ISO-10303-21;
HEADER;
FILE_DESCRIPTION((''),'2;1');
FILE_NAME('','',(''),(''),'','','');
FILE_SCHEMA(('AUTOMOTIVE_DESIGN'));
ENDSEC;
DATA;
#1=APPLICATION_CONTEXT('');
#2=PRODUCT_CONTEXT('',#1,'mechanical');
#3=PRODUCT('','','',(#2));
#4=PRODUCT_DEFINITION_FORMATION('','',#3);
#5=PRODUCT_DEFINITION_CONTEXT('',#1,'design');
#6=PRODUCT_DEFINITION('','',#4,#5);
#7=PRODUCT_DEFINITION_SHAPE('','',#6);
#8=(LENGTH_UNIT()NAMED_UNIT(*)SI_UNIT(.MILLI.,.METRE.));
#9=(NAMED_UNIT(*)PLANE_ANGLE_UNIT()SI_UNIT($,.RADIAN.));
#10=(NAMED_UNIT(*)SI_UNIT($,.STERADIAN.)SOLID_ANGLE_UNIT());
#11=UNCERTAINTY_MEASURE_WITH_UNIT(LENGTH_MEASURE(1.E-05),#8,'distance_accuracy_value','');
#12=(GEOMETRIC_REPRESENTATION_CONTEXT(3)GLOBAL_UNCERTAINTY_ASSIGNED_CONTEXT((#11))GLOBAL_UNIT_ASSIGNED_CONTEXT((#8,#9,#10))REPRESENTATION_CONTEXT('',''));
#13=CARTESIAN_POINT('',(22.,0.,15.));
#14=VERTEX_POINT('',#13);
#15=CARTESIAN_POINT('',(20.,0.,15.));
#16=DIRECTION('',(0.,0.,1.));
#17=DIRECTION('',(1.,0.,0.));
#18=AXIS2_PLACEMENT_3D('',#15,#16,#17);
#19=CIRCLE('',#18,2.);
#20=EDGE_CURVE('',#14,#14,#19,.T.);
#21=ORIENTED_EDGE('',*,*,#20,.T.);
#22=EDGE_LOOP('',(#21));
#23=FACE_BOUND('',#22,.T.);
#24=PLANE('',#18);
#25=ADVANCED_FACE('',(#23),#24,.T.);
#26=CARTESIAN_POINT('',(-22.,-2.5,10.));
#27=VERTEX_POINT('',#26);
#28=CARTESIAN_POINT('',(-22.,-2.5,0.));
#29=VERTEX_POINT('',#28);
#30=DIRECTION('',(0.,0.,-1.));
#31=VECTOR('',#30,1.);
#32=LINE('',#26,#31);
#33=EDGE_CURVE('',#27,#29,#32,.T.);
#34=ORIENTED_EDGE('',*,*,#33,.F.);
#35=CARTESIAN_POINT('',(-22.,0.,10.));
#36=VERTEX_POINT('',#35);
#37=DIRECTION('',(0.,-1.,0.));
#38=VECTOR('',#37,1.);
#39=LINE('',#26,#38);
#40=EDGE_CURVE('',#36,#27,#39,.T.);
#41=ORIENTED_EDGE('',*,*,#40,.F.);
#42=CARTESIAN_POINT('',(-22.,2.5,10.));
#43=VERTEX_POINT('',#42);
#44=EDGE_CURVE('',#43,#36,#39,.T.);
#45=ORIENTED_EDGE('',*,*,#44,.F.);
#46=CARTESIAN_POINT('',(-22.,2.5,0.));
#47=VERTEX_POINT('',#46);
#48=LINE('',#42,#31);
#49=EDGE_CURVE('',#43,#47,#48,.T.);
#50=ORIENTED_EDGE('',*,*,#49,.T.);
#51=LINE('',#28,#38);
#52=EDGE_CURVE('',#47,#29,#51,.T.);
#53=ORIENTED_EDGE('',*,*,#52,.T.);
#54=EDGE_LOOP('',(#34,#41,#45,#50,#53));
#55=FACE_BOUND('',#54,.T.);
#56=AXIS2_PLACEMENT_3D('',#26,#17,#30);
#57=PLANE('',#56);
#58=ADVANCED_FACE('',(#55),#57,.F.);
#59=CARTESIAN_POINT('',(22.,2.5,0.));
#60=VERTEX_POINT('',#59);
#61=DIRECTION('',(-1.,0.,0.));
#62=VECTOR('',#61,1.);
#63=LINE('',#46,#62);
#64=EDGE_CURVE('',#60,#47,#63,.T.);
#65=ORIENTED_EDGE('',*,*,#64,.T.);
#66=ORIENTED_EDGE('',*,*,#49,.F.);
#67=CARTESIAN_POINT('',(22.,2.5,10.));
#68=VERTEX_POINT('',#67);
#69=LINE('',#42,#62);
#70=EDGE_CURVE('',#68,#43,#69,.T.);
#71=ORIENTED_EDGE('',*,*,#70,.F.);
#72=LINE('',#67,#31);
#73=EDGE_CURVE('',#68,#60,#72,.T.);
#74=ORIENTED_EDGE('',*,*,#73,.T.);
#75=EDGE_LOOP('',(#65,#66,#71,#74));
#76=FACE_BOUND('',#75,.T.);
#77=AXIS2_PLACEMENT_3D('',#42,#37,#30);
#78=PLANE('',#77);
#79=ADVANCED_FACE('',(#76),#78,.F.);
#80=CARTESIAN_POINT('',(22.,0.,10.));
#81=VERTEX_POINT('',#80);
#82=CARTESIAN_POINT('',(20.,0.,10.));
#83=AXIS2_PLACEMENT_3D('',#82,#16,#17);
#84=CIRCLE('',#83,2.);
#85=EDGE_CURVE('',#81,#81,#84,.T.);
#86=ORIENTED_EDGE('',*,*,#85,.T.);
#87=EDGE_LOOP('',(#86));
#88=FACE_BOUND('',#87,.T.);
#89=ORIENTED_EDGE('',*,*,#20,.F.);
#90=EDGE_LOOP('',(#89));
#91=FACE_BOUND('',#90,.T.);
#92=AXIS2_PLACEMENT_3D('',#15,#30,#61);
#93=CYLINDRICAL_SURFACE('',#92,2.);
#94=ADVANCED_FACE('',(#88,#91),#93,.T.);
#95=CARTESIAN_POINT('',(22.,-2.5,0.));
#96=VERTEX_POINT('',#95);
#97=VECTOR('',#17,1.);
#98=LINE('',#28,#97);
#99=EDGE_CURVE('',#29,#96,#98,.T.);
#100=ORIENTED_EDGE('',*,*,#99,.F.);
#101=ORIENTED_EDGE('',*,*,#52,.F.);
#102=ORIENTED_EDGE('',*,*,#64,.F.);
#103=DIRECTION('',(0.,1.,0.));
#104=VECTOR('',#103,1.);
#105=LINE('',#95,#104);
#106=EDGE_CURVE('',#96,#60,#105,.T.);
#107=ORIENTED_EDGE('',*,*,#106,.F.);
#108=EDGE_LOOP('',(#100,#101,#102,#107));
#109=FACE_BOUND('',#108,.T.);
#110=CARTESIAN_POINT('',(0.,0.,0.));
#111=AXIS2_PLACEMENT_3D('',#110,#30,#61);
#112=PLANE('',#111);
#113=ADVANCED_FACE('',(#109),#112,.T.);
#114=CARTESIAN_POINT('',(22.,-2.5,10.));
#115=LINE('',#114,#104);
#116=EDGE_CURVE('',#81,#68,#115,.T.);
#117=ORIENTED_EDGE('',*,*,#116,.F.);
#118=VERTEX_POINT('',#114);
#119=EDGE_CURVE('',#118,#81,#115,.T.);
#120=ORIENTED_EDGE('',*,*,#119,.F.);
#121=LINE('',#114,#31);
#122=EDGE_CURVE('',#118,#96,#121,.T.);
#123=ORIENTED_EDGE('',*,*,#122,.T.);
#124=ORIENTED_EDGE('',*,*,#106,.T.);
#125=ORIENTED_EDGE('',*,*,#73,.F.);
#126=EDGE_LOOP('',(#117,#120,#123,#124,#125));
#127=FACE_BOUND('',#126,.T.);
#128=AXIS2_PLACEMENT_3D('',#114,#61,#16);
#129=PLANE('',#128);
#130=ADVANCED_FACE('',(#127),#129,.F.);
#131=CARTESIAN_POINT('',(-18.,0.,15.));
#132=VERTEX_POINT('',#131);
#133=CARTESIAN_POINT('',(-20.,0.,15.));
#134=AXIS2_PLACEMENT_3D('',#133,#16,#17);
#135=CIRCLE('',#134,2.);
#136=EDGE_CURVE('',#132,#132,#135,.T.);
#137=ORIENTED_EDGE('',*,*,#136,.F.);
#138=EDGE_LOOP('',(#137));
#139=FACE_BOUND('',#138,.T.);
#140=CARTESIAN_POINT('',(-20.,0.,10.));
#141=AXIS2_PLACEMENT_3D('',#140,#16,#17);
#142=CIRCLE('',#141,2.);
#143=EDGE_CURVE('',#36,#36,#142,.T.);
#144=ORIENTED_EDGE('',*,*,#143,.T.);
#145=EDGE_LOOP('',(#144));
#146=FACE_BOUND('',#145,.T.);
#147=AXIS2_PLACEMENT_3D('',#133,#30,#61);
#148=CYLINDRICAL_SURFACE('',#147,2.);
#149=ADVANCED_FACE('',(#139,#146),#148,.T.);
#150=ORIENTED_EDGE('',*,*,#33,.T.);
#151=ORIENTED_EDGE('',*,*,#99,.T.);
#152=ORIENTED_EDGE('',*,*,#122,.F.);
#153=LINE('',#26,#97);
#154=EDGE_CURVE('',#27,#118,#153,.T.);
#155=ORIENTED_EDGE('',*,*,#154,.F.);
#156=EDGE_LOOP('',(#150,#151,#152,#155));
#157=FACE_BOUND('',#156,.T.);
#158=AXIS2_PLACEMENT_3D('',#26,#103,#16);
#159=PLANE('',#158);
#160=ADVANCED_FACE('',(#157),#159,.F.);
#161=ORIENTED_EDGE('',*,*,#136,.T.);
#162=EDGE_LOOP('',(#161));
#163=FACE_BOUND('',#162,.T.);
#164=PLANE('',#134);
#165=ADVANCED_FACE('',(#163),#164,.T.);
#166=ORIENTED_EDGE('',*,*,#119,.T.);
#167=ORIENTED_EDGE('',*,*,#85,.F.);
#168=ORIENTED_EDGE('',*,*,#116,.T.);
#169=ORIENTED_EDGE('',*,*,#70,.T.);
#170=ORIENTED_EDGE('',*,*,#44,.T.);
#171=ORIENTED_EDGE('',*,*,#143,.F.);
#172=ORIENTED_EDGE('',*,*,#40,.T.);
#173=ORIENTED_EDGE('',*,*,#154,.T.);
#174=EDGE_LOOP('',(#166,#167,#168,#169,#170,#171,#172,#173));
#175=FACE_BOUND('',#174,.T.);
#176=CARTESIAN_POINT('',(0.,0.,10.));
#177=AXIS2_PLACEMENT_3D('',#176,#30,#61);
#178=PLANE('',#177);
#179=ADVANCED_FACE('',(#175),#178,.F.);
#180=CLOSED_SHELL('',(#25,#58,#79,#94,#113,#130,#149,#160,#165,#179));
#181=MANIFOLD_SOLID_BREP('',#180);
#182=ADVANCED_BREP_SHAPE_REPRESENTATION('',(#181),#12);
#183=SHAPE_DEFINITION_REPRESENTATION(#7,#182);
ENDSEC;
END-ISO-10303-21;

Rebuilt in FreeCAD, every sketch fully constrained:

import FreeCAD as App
import Part
import Sketcher
Q = App.Units.Quantity


def add_polygon(sketch, points):
    """Adds a closed chain of lines whose ends are joined by coincident constraints."""
    first, n = sketch.GeometryCount, len(points)
    for a, b in zip(points, points[1:] + points[:1]):
        sketch.addGeometry(Part.LineSegment(App.Vector(*a, 0), App.Vector(*b, 0)), False)
    for i in range(n):
        sketch.addConstraint(Sketcher.Constraint("Coincident", first + i, 2, first + (i + 1) % n, 1))

doc = App.newDocument("Part")
body = doc.addObject("PartDesign::Body", "Body")

# Sketch on XY plane
sketch1 = doc.addObject("Sketcher::SketchObject", "Sketch")
body.addObject(sketch1)
sketch1.AttachmentSupport = (doc.XY_Plane, [""])
sketch1.MapMode = "FlatFace"
add_polygon(sketch1, [(-22, 2), (-22, -2), (22, -2), (22, 2)])  # lines 0-3
sketch1.addConstraint(Sketcher.Constraint("Vertical", 0))
sketch1.addConstraint(Sketcher.Constraint("Horizontal", 1))
sketch1.addConstraint(Sketcher.Constraint("Vertical", 2))
sketch1.addConstraint(Sketcher.Constraint("Horizontal", 3))
sketch1.addConstraint(Sketcher.Constraint("Symmetric", 0, 2, 2, 2, -1, 1))
sketch1.addConstraint(Sketcher.Constraint("DistanceX", 1, 1, 1, 2, Q("44 mm")))
sketch1.addConstraint(Sketcher.Constraint("DistanceY", 0, 2, 0, 1, Q("5 mm")))
pad1 = doc.addObject("PartDesign::Pad", "Pad")
body.addObject(pad1)
pad1.Profile = sketch1
pad1.Length = 10

# Sketch on XY plane
sketch2 = doc.addObject("Sketcher::SketchObject", "Sketch001")
body.addObject(sketch2)
sketch2.AttachmentSupport = (doc.XY_Plane, [""])
sketch2.MapMode = "FlatFace"
sketch2.AttachmentOffset = App.Placement(App.Vector(0, 0, 10), App.Rotation())
sketch2.addGeometry(Part.Circle(App.Vector(-20, 0, 0), App.Vector(0, 0, 1), 2), False)
sketch2.addGeometry(Part.Circle(App.Vector(20, 0, 0), App.Vector(0, 0, 1), 2), False)
sketch2.addConstraint(Sketcher.Constraint("Equal", 0, 1))
sketch2.addConstraint(Sketcher.Constraint("Symmetric", 0, 3, 1, 3, -1, 1))
sketch2.addConstraint(Sketcher.Constraint("PointOnObject", 0, 3, -1))
sketch2.addConstraint(Sketcher.Constraint("Diameter", 0, Q("4 mm")))
sketch2.addConstraint(Sketcher.Constraint("DistanceX", 0, 3, -1, 1, Q("20 mm")))
pad2 = doc.addObject("PartDesign::Pad", "Pad001")
body.addObject(pad2)
pad2.Profile = sketch2
pad2.Length = 5

doc.recompute()
